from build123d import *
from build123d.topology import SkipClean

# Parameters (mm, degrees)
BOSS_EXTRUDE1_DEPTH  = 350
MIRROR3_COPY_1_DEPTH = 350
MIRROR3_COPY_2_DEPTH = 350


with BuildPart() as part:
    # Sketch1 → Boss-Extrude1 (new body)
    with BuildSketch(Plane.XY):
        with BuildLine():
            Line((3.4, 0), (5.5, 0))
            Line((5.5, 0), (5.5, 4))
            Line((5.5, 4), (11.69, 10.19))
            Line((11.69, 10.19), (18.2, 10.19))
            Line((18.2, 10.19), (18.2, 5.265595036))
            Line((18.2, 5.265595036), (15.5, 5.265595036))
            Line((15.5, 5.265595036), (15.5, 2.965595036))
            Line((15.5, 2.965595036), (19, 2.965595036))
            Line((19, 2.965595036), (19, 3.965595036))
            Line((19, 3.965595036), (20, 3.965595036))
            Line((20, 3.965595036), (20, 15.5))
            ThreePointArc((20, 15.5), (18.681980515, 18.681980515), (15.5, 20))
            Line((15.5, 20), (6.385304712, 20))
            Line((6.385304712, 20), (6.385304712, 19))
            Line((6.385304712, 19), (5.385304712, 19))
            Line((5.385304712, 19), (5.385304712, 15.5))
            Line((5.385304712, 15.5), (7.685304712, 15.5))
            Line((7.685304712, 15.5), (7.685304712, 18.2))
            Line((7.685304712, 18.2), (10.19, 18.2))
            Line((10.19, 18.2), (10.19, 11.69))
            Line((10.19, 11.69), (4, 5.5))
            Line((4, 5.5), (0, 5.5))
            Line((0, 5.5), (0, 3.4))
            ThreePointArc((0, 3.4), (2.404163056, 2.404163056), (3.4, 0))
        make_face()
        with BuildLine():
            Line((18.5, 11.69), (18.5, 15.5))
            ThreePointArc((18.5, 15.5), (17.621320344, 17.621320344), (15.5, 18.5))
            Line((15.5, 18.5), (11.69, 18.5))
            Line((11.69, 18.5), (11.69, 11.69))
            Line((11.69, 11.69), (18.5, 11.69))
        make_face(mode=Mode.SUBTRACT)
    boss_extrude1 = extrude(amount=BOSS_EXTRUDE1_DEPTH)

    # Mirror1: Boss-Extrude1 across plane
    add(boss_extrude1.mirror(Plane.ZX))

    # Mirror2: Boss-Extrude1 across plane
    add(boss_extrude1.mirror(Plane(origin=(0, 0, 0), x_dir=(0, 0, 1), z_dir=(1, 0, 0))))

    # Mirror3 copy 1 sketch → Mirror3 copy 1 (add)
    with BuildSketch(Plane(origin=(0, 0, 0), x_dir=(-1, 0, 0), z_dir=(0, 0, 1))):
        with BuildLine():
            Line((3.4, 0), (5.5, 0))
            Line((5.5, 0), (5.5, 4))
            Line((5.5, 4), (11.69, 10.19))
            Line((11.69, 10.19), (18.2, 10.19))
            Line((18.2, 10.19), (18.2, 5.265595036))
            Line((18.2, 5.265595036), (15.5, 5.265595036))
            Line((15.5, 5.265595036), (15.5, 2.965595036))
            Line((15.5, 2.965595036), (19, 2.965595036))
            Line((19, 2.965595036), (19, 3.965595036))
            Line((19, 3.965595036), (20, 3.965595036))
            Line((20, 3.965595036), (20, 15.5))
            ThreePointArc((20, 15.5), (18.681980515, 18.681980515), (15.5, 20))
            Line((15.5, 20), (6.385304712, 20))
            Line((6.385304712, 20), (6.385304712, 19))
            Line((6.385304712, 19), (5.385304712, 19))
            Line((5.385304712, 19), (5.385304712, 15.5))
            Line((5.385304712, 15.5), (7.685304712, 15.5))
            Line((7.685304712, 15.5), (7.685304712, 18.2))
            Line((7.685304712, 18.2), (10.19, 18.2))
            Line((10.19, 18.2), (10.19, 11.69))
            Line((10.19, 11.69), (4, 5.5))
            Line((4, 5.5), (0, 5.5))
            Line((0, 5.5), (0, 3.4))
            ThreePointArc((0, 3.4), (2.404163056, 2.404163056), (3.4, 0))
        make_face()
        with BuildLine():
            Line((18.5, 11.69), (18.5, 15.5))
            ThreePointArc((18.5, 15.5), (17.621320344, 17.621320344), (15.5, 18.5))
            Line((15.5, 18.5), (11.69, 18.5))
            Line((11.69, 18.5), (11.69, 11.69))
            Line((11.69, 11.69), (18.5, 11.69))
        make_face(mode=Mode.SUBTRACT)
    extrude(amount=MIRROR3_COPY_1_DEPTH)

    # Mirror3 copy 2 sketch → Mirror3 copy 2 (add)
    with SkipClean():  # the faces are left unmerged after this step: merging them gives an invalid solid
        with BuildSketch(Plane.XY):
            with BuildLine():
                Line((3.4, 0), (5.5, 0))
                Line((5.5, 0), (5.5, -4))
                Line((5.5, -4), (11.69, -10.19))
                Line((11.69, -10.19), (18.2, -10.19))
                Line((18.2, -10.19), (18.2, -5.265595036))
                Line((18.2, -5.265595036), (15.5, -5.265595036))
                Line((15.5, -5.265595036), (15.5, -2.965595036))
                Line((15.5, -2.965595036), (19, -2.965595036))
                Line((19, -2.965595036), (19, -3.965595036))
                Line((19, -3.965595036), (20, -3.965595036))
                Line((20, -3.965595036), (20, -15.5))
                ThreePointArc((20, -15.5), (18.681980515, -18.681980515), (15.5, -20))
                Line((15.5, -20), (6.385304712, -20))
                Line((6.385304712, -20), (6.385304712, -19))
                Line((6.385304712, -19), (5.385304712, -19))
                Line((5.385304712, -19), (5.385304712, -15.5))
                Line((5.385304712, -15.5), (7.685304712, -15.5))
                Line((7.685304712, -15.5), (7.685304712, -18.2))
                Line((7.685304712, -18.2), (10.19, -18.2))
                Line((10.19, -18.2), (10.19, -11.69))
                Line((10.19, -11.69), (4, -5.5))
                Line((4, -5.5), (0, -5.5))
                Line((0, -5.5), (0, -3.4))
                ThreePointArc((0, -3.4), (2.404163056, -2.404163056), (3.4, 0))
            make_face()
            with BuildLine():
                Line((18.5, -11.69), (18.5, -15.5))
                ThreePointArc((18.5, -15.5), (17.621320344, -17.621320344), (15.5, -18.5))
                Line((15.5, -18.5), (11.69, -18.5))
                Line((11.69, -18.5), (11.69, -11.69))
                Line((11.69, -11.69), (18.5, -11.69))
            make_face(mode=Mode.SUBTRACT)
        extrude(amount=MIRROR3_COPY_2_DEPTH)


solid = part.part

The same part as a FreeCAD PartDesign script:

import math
import FreeCAD as App
import Part
import Sketcher

V = App.Vector
Q = App.Units.Quantity

doc = App.newDocument("Part")
body = doc.addObject("PartDesign::Body", "Body")

# Sketch on XY plane
sketch1 = body.newObject("Sketcher::SketchObject", "Sketch")
sketch1.AttachmentSupport = (doc.getObject("XY_Plane"), [""])
sketch1.MapMode = "FlatFace"
sketch1.addGeometry([
    Part.LineSegment(V(3.4, 0, 0), V(5.5, 0, 0)),  # 0
    Part.LineSegment(V(5.5, 0, 0), V(5.5, 4, 0)),  # 1
    Part.LineSegment(V(5.5, 4, 0), V(11.69, 10.19, 0)),  # 2
    Part.LineSegment(V(11.69, 10.19, 0), V(18.2, 10.19, 0)),  # 3
    Part.LineSegment(V(18.2, 10.19, 0), V(18.2, 5.265595, 0)),  # 4
    Part.LineSegment(V(18.2, 5.265595, 0), V(15.5, 5.265595, 0)),  # 5
    Part.LineSegment(V(15.5, 5.265595, 0), V(15.5, 2.965595, 0)),  # 6
    Part.LineSegment(V(15.5, 2.965595, 0), V(19, 2.965595, 0)),  # 7
    Part.LineSegment(V(19, 2.965595, 0), V(19, 3.965595, 0)),  # 8
    Part.LineSegment(V(19, 3.965595, 0), V(20, 3.965595, 0)),  # 9
    Part.LineSegment(V(20, 3.965595, 0), V(20, 15.5, 0)),  # 10
    Part.ArcOfCircle(Part.Circle(V(15.5, 15.5, 0), V(0, 0, 1), 4.5), math.radians(0), math.radians(90)),  # 11
    Part.LineSegment(V(15.5, 20, 0), V(6.385305, 20, 0)),  # 12
    Part.LineSegment(V(6.385305, 20, 0), V(6.385305, 19, 0)),  # 13
    Part.LineSegment(V(6.385305, 19, 0), V(5.385305, 19, 0)),  # 14
    Part.LineSegment(V(5.385305, 19, 0), V(5.385305, 15.5, 0)),  # 15
    Part.LineSegment(V(5.385305, 15.5, 0), V(7.685305, 15.5, 0)),  # 16
    Part.LineSegment(V(7.685305, 15.5, 0), V(7.685305, 18.2, 0)),  # 17
    Part.LineSegment(V(7.685305, 18.2, 0), V(10.19, 18.2, 0)),  # 18
    Part.LineSegment(V(10.19, 18.2, 0), V(10.19, 11.69, 0)),  # 19
    Part.LineSegment(V(10.19, 11.69, 0), V(4, 5.5, 0)),  # 20
    Part.LineSegment(V(4, 5.5, 0), V(0, 5.5, 0)),  # 21
    Part.LineSegment(V(0, 5.5, 0), V(0, 3.4, 0)),  # 22
    Part.ArcOfCircle(Part.Circle(V(0, 0, 0), V(0, 0, 1), 3.4), math.radians(0), math.radians(90)),  # 23
    Part.LineSegment(V(18.5, 15.5, 0), V(18.5, 11.69, 0)),  # 24
    Part.LineSegment(V(18.5, 11.69, 0), V(11.69, 11.69, 0)),  # 25
    Part.LineSegment(V(11.69, 11.69, 0), V(11.69, 18.5, 0)),  # 26
    Part.LineSegment(V(11.69, 18.5, 0), V(15.5, 18.5, 0)),  # 27
    Part.ArcOfCircle(Part.Circle(V(15.5, 15.5, 0), V(0, 0, 1), 3), math.radians(0), math.radians(90)),  # 28
], False)
sketch1.addConstraint([
    Sketcher.Constraint("Coincident", 0, 2, 1, 1),
    Sketcher.Constraint("Coincident", 1, 2, 2, 1),
    Sketcher.Constraint("Coincident", 2, 2, 3, 1),
    Sketcher.Constraint("Coincident", 3, 2, 4, 1),
    Sketcher.Constraint("Coincident", 4, 2, 5, 1),
    Sketcher.Constraint("Coincident", 5, 2, 6, 1),
    Sketcher.Constraint("Coincident", 6, 2, 7, 1),
    Sketcher.Constraint("Coincident", 7, 2, 8, 1),
    Sketcher.Constraint("Coincident", 8, 2, 9, 1),
    Sketcher.Constraint("Coincident", 9, 2, 10, 1),
    Sketcher.Constraint("Tangent", 10, 2, 11, 1),
    Sketcher.Constraint("Tangent", 11, 2, 12, 1),
    Sketcher.Constraint("Coincident", 12, 2, 13, 1),
    Sketcher.Constraint("Coincident", 13, 2, 14, 1),
    Sketcher.Constraint("Coincident", 14, 2, 15, 1),
    Sketcher.Constraint("Coincident", 15, 2, 16, 1),
    Sketcher.Constraint("Coincident", 16, 2, 17, 1),
    Sketcher.Constraint("Coincident", 17, 2, 18, 1),
    Sketcher.Constraint("Coincident", 18, 2, 19, 1),
    Sketcher.Constraint("Coincident", 19, 2, 20, 1),
    Sketcher.Constraint("Coincident", 20, 2, 21, 1),
    Sketcher.Constraint("Coincident", 21, 2, 22, 1),
    Sketcher.Constraint("Coincident", 22, 2, 23, 2),
    Sketcher.Constraint("Coincident", 23, 1, 0, 1),
    Sketcher.Constraint("Coincident", 24, 2, 25, 1),
    Sketcher.Constraint("Coincident", 25, 2, 26, 1),
    Sketcher.Constraint("Coincident", 26, 2, 27, 1),
    Sketcher.Constraint("Tangent", 27, 2, 28, 2),
    Sketcher.Constraint("Tangent", 28, 1, 24, 1),
    Sketcher.Constraint("Horizontal", 0),
    Sketcher.Constraint("Vertical", 1),
    Sketcher.Constraint("Horizontal", 3),
    Sketcher.Constraint("Vertical", 4),
    Sketcher.Constraint("Horizontal", 5),
    Sketcher.Constraint("Vertical", 6),
    Sketcher.Constraint("Horizontal", 7),
    Sketcher.Constraint("Vertical", 8),
    Sketcher.Constraint("Horizontal", 9),
    Sketcher.Constraint("Vertical", 10),
    Sketcher.Constraint("Horizontal", 12),
    Sketcher.Constraint("Vertical", 13),
    Sketcher.Constraint("Horizontal", 14),
    Sketcher.Constraint("Vertical", 15),
    Sketcher.Constraint("Horizontal", 16),
    Sketcher.Constraint("Vertical", 17),
    Sketcher.Constraint("Horizontal", 18),
    Sketcher.Constraint("Vertical", 19),
    Sketcher.Constraint("Horizontal", 21),
    Sketcher.Constraint("Vertical", 22),
    Sketcher.Constraint("Vertical", 24),
    Sketcher.Constraint("Horizontal", 25),
    Sketcher.Constraint("Vertical", 26),
    Sketcher.Constraint("Horizontal", 27),
    Sketcher.Constraint("Coincident", 23, 3, -1, 1),
    Sketcher.Constraint("Coincident", 28, 3, 11, 3),
    Sketcher.Constraint("PointOnObject", 0, 2, -1),
    Sketcher.Constraint("PointOnObject", 21, 2, -2),
    Sketcher.Constraint("Parallel", 2, 20),
    Sketcher.Constraint("Horizontal", 10, 2, 15, 2),
    Sketcher.Constraint("Horizontal", 19, 2, 24, 2),
    Sketcher.Constraint("Vertical", 28, 3, 5, 2),
    Sketcher.Constraint("Vertical", 2, 2, 25, 2),
    Sketcher.Constraint("Equal", 9, 14),
    Sketcher.Constraint("Equal", 21, 1),
    Sketcher.Constraint("Equal", 16, 6),
    Sketcher.Constraint("Equal", 14, 8),
    Sketcher.Constraint("Equal", 8, 13),
    Sketcher.Constraint("Equal", 5, 17),
    Sketcher.Constraint("Equal", 3, 19),
    Sketcher.Constraint("Equal", 0, 22),
    Sketcher.Constraint("Equal", 2, 20),
    Sketcher.Constraint("Radius", 28, 3.0),
    Sketcher.Constraint("Radius", 11, 4.5),
    Sketcher.Constraint("Radius", 23, 3.4),
    Sketcher.Constraint("DistanceX", 9, 1, 9, 2, 1.0),
    Sketcher.Constraint("DistanceX", 21, 2, 21, 1, 4.0),
    Sketcher.Constraint("Angle", 2, Q("45 deg")),
    Sketcher.Constraint("DistanceX", 0, 1, 0, 2, 2.1),
    Sketcher.Constraint("DistanceX", 5, 2, 5, 1, 2.7),
    Sketcher.Constraint("DistanceX", 16, 1, 16, 2, 2.3),
    Sketcher.Constraint("DistanceX", -1, 1, 7, 2, 19.0),
    Sketcher.Constraint("DistanceX", 3, 1, 3, 2, 6.51),
    Sketcher.Constraint("DistanceX", 12, 2, 12, 1, 9.114695),
    Sketcher.Constraint("DistanceY", 4, 2, 4, 1, 4.924405),
])
pad1 = body.newObject("PartDesign::Pad", "Pad")
pad1.Profile = sketch1
pad1.Length = 350
doc.recompute()

mirrored = body.newObject("PartDesign::Mirrored", "Mirrored")
mirrored.Originals = [pad1]
mirrored.MirrorPlane = (doc.getObject("XZ_Plane"), [""])
body.Tip = mirrored
doc.recompute()

mirrored2 = body.newObject("PartDesign::Mirrored", "Mirrored001")
mirrored2.Originals = [pad1]
mirrored2.MirrorPlane = (doc.getObject("YZ_Plane"), [""])
body.Tip = mirrored2

# Sketch on XY plane
sketch2 = body.newObject("Sketcher::SketchObject", "Sketch001")
sketch2.AttachmentSupport = (doc.getObject("XY_Plane"), [""])
sketch2.MapMode = "FlatFace"
sketch2.addGeometry([
    Part.LineSegment(V(-3.4, 0, 0), V(-5.5, 0, 0)),  # 0
    Part.LineSegment(V(-5.5, 0, 0), V(-5.5, -4, 0)),  # 1
    Part.LineSegment(V(-5.5, -4, 0), V(-11.69, -10.19, 0)),  # 2
    Part.LineSegment(V(-11.69, -10.19, 0), V(-18.2, -10.19, 0)),  # 3
    Part.LineSegment(V(-18.2, -10.19, 0), V(-18.2, -5.265595, 0)),  # 4
    Part.LineSegment(V(-18.2, -5.265595, 0), V(-15.5, -5.265595, 0)),  # 5
    Part.LineSegment(V(-15.5, -5.265595, 0), V(-15.5, -2.965595, 0)),  # 6
    Part.LineSegment(V(-15.5, -2.965595, 0), V(-19, -2.965595, 0)),  # 7
    Part.LineSegment(V(-19, -2.965595, 0), V(-19, -3.965595, 0)),  # 8
    Part.LineSegment(V(-19, -3.965595, 0), V(-20, -3.965595, 0)),  # 9
    Part.LineSegment(V(-20, -3.965595, 0), V(-20, -15.5, 0)),  # 10
    Part.ArcOfCircle(Part.Circle(V(-15.5, -15.5, 0), V(0, 0, 1), 4.5), math.radians(-180), math.radians(-90)),  # 11
    Part.LineSegment(V(-15.5, -20, 0), V(-6.385305, -20, 0)),  # 12
    Part.LineSegment(V(-6.385305, -20, 0), V(-6.385305, -19, 0)),  # 13
    Part.LineSegment(V(-6.385305, -19, 0), V(-5.385305, -19, 0)),  # 14
    Part.LineSegment(V(-5.385305, -19, 0), V(-5.385305, -15.5, 0)),  # 15
    Part.LineSegment(V(-5.385305, -15.5, 0), V(-7.685305, -15.5, 0)),  # 16
    Part.LineSegment(V(-7.685305, -15.5, 0), V(-7.685305, -18.2, 0)),  # 17
    Part.LineSegment(V(-7.685305, -18.2, 0), V(-10.19, -18.2, 0)),  # 18
    Part.LineSegment(V(-10.19, -18.2, 0), V(-10.19, -11.69, 0)),  # 19
    Part.LineSegment(V(-10.19, -11.69, 0), V(-4, -5.5, 0)),  # 20
    Part.LineSegment(V(-4, -5.5, 0), V(0, -5.5, 0)),  # 21
    Part.LineSegment(V(0, -5.5, 0), V(0, -3.4, 0)),  # 22
    Part.ArcOfCircle(Part.Circle(V(0, 0, 0), V(0, 0, 1), 3.4), math.radians(180), math.radians(270)),  # 23
    Part.LineSegment(V(-18.5, -15.5, 0), V(-18.5, -11.69, 0)),  # 24
    Part.LineSegment(V(-18.5, -11.69, 0), V(-11.69, -11.69, 0)),  # 25
    Part.LineSegment(V(-11.69, -11.69, 0), V(-11.69, -18.5, 0)),  # 26
    Part.LineSegment(V(-11.69, -18.5, 0), V(-15.5, -18.5, 0)),  # 27
    Part.ArcOfCircle(Part.Circle(V(-15.5, -15.5, 0), V(0, 0, 1), 3), math.radians(180), math.radians(270)),  # 28
], False)
sketch2.addConstraint([
    Sketcher.Constraint("Coincident", 0, 2, 1, 1),
    Sketcher.Constraint("Coincident", 1, 2, 2, 1),
    Sketcher.Constraint("Coincident", 2, 2, 3, 1),
    Sketcher.Constraint("Coincident", 3, 2, 4, 1),
    Sketcher.Constraint("Coincident", 4, 2, 5, 1),
    Sketcher.Constraint("Coincident", 5, 2, 6, 1),
    Sketcher.Constraint("Coincident", 6, 2, 7, 1),
    Sketcher.Constraint("Coincident", 7, 2, 8, 1),
    Sketcher.Constraint("Coincident", 8, 2, 9, 1),
    Sketcher.Constraint("Coincident", 9, 2, 10, 1),
    Sketcher.Constraint("Tangent", 10, 2, 11, 1),
    Sketcher.Constraint("Tangent", 11, 2, 12, 1),
    Sketcher.Constraint("Coincident", 12, 2, 13, 1),
    Sketcher.Constraint("Coincident", 13, 2, 14, 1),
    Sketcher.Constraint("Coincident", 14, 2, 15, 1),
    Sketcher.Constraint("Coincident", 15, 2, 16, 1),
    Sketcher.Constraint("Coincident", 16, 2, 17, 1),
    Sketcher.Constraint("Coincident", 17, 2, 18, 1),
    Sketcher.Constraint("Coincident", 18, 2, 19, 1),
    Sketcher.Constraint("Coincident", 19, 2, 20, 1),
    Sketcher.Constraint("Coincident", 20, 2, 21, 1),
    Sketcher.Constraint("Coincident", 21, 2, 22, 1),
    Sketcher.Constraint("Coincident", 22, 2, 23, 2),
    Sketcher.Constraint("Coincident", 23, 1, 0, 1),
    Sketcher.Constraint("Coincident", 24, 2, 25, 1),
    Sketcher.Constraint("Coincident", 25, 2, 26, 1),
    Sketcher.Constraint("Coincident", 26, 2, 27, 1),
    Sketcher.Constraint("Tangent", 27, 2, 28, 2),
    Sketcher.Constraint("Tangent", 28, 1, 24, 1),
    Sketcher.Constraint("Horizontal", 0),
    Sketcher.Constraint("Vertical", 1),
    Sketcher.Constraint("Horizontal", 3),
    Sketcher.Constraint("Vertical", 4),
    Sketcher.Constraint("Horizontal", 5),
    Sketcher.Constraint("Vertical", 6),
    Sketcher.Constraint("Horizontal", 7),
    Sketcher.Constraint("Vertical", 8),
    Sketcher.Constraint("Horizontal", 9),
    Sketcher.Constraint("Vertical", 10),
    Sketcher.Constraint("Horizontal", 12),
    Sketcher.Constraint("Vertical", 13),
    Sketcher.Constraint("Horizontal", 14),
    Sketcher.Constraint("Vertical", 15),
    Sketcher.Constraint("Horizontal", 16),
    Sketcher.Constraint("Vertical", 17),
    Sketcher.Constraint("Horizontal", 18),
    Sketcher.Constraint("Vertical", 19),
    Sketcher.Constraint("Horizontal", 21),
    Sketcher.Constraint("Vertical", 22),
    Sketcher.Constraint("Vertical", 24),
    Sketcher.Constraint("Horizontal", 25),
    Sketcher.Constraint("Vertical", 26),
    Sketcher.Constraint("Horizontal", 27),
    Sketcher.Constraint("Coincident", 23, 3, -1, 1),
    Sketcher.Constraint("Coincident", 28, 3, 11, 3),
    Sketcher.Constraint("PointOnObject", 0, 2, -1),
    Sketcher.Constraint("PointOnObject", 21, 2, -2),
    Sketcher.Constraint("Parallel", 2, 20),
    Sketcher.Constraint("Horizontal", 10, 2, 15, 2),
    Sketcher.Constraint("Horizontal", 19, 2, 24, 2),
    Sketcher.Constraint("Vertical", 28, 3, 5, 2),
    Sketcher.Constraint("Vertical", 2, 2, 25, 2),
    Sketcher.Constraint("Equal", 9, 14),
    Sketcher.Constraint("Equal", 21, 1),
    Sketcher.Constraint("Equal", 16, 6),
    Sketcher.Constraint("Equal", 14, 8),
    Sketcher.Constraint("Equal", 8, 13),
    Sketcher.Constraint("Equal", 5, 17),
    Sketcher.Constraint("Equal", 3, 19),
    Sketcher.Constraint("Equal", 0, 22),
    Sketcher.Constraint("Equal", 2, 20),
    Sketcher.Constraint("Radius", 28, 3.0),
    Sketcher.Constraint("Radius", 11, 4.5),
    Sketcher.Constraint("Radius", 23, 3.4),
    Sketcher.Constraint("DistanceX", 9, 2, 9, 1, 1.0),
    Sketcher.Constraint("DistanceX", 21, 1, 21, 2, 4.0),
    Sketcher.Constraint("Angle", 2, Q("-135 deg")),
    Sketcher.Constraint("DistanceX", 0, 2, 0, 1, 2.1),
    Sketcher.Constraint("DistanceX", 5, 1, 5, 2, 2.7),
    Sketcher.Constraint("DistanceX", 16, 2, 16, 1, 2.3),
    Sketcher.Constraint("DistanceX", 7, 2, -1, 1, 19.0),
    Sketcher.Constraint("DistanceX", 3, 2, 3, 1, 6.51),
    Sketcher.Constraint("DistanceX", 12, 1, 12, 2, 9.114695),
    Sketcher.Constraint("DistanceY", 4, 1, 4, 2, 4.924405),
])
pad2 = body.newObject("PartDesign::Pad", "Pad001")
pad2.Profile = sketch2
pad2.Length = 350

# Sketch on XY plane
sketch3 = body.newObject("Sketcher::SketchObject", "Sketch002")
sketch3.AttachmentSupport = (doc.getObject("XY_Plane"), [""])
sketch3.MapMode = "FlatFace"
sketch3.addGeometry([
    Part.LineSegment(V(5.5, 0, 0), V(3.4, 0, 0)),  # 0
    Part.ArcOfCircle(Part.Circle(V(0, 0, 0), V(0, 0, 1), 3.4), math.radians(-90), math.radians(0)),  # 1
    Part.LineSegment(V(0, -3.4, 0), V(0, -5.5, 0)),  # 2
    Part.LineSegment(V(0, -5.5, 0), V(4, -5.5, 0)),  # 3
    Part.LineSegment(V(4, -5.5, 0), V(10.19, -11.69, 0)),  # 4
    Part.LineSegment(V(10.19, -11.69, 0), V(10.19, -18.2, 0)),  # 5
    Part.LineSegment(V(10.19, -18.2, 0), V(7.685305, -18.2, 0)),  # 6
    Part.LineSegment(V(7.685305, -18.2, 0), V(7.685305, -15.5, 0)),  # 7
    Part.LineSegment(V(7.685305, -15.5, 0), V(5.385305, -15.5, 0)),  # 8
    Part.LineSegment(V(5.385305, -15.5, 0), V(5.385305, -19, 0)),  # 9
    Part.LineSegment(V(5.385305, -19, 0), V(6.385305, -19, 0)),  # 10
    Part.LineSegment(V(6.385305, -19, 0), V(6.385305, -20, 0)),  # 11
    Part.LineSegment(V(6.385305, -20, 0), V(15.5, -20, 0)),  # 12
    Part.ArcOfCircle(Part.Circle(V(15.5, -15.5, 0), V(0, 0, 1), 4.5), math.radians(-90), math.radians(0)),  # 13
    Part.LineSegment(V(20, -15.5, 0), V(20, -3.965595, 0)),  # 14
    Part.LineSegment(V(20, -3.965595, 0), V(19, -3.965595, 0)),  # 15
    Part.LineSegment(V(19, -3.965595, 0), V(19, -2.965595, 0)),  # 16
    Part.LineSegment(V(19, -2.965595, 0), V(15.5, -2.965595, 0)),  # 17
    Part.LineSegment(V(15.5, -2.965595, 0), V(15.5, -5.265595, 0)),  # 18
    Part.LineSegment(V(15.5, -5.265595, 0), V(18.2, -5.265595, 0)),  # 19
    Part.LineSegment(V(18.2, -5.265595, 0), V(18.2, -10.19, 0)),  # 20
    Part.LineSegment(V(18.2, -10.19, 0), V(11.69, -10.19, 0)),  # 21
    Part.LineSegment(V(11.69, -10.19, 0), V(5.5, -4, 0)),  # 22
    Part.LineSegment(V(5.5, -4, 0), V(5.5, 0, 0)),  # 23
    Part.LineSegment(V(18.5, -11.69, 0), V(18.5, -15.5, 0)),  # 24
    Part.ArcOfCircle(Part.Circle(V(15.5, -15.5, 0), V(0, 0, 1), 3), math.radians(-90), math.radians(0)),  # 25
    Part.LineSegment(V(15.5, -18.5, 0), V(11.69, -18.5, 0)),  # 26
    Part.LineSegment(V(11.69, -18.5, 0), V(11.69, -11.69, 0)),  # 27
    Part.LineSegment(V(11.69, -11.69, 0), V(18.5, -11.69, 0)),  # 28
], False)
sketch3.addConstraint([
    Sketcher.Constraint("Coincident", 0, 2, 1, 2),
    Sketcher.Constraint("Coincident", 1, 1, 2, 1),
    Sketcher.Constraint("Coincident", 2, 2, 3, 1),
    Sketcher.Constraint("Coincident", 3, 2, 4, 1),
    Sketcher.Constraint("Coincident", 4, 2, 5, 1),
    Sketcher.Constraint("Coincident", 5, 2, 6, 1),
    Sketcher.Constraint("Coincident", 6, 2, 7, 1),
    Sketcher.Constraint("Coincident", 7, 2, 8, 1),
    Sketcher.Constraint("Coincident", 8, 2, 9, 1),
    Sketcher.Constraint("Coincident", 9, 2, 10, 1),
    Sketcher.Constraint("Coincident", 10, 2, 11, 1),
    Sketcher.Constraint("Coincident", 11, 2, 12, 1),
    Sketcher.Constraint("Tangent", 12, 2, 13, 1),
    Sketcher.Constraint("Tangent", 13, 2, 14, 1),
    Sketcher.Constraint("Coincident", 14, 2, 15, 1),
    Sketcher.Constraint("Coincident", 15, 2, 16, 1),
    Sketcher.Constraint("Coincident", 16, 2, 17, 1),
    Sketcher.Constraint("Coincident", 17, 2, 18, 1),
    Sketcher.Constraint("Coincident", 18, 2, 19, 1),
    Sketcher.Constraint("Coincident", 19, 2, 20, 1),
    Sketcher.Constraint("Coincident", 20, 2, 21, 1),
    Sketcher.Constraint("Coincident", 21, 2, 22, 1),
    Sketcher.Constraint("Coincident", 22, 2, 23, 1),
    Sketcher.Constraint("Coincident", 23, 2, 0, 1),
    Sketcher.Constraint("Tangent", 24, 2, 25, 2),
    Sketcher.Constraint("Tangent", 25, 1, 26, 1),
    Sketcher.Constraint("Coincident", 26, 2, 27, 1),
    Sketcher.Constraint("Coincident", 27, 2, 28, 1),
    Sketcher.Constraint("Coincident", 28, 2, 24, 1),
    Sketcher.Constraint("Horizontal", 0),
    Sketcher.Constraint("Vertical", 2),
    Sketcher.Constraint("Horizontal", 3),
    Sketcher.Constraint("Vertical", 5),
    Sketcher.Constraint("Horizontal", 6),
    Sketcher.Constraint("Vertical", 7),
    Sketcher.Constraint("Horizontal", 8),
    Sketcher.Constraint("Vertical", 9),
    Sketcher.Constraint("Horizontal", 10),
    Sketcher.Constraint("Vertical", 11),
    Sketcher.Constraint("Horizontal", 12),
    Sketcher.Constraint("Vertical", 14),
    Sketcher.Constraint("Horizontal", 15),
    Sketcher.Constraint("Vertical", 16),
    Sketcher.Constraint("Horizontal", 17),
    Sketcher.Constraint("Vertical", 18),
    Sketcher.Constraint("Horizontal", 19),
    Sketcher.Constraint("Vertical", 20),
    Sketcher.Constraint("Horizontal", 21),
    Sketcher.Constraint("Vertical", 23),
    Sketcher.Constraint("Vertical", 24),
    Sketcher.Constraint("Horizontal", 26),
    Sketcher.Constraint("Vertical", 27),
    Sketcher.Constraint("Horizontal", 28),
    Sketcher.Constraint("Coincident", 1, 3, -1, 1),
    Sketcher.Constraint("Coincident", 25, 3, 13, 3),
    Sketcher.Constraint("PointOnObject", 0, 2, -1),
    Sketcher.Constraint("PointOnObject", 1, 1, -2),
    Sketcher.Constraint("Parallel", 4, 22),
    Sketcher.Constraint("Horizontal", 25, 3, 7, 2),
    Sketcher.Constraint("Horizontal", 4, 2, 27, 2),
    Sketcher.Constraint("Vertical", 12, 2, 17, 2),
    Sketcher.Constraint("Vertical", 21, 2, 26, 2),
    Sketcher.Constraint("Equal", 10, 15),
    Sketcher.Constraint("Equal", 0, 2),
    Sketcher.Constraint("Equal", 21, 5),
    Sketcher.Constraint("Equal", 19, 7),
    Sketcher.Constraint("Equal", 17, 9),
    Sketcher.Constraint("Equal", 11, 16),
    Sketcher.Constraint("Equal", 8, 18),
    Sketcher.Constraint("Equal", 3, 23),
    Sketcher.Constraint("Equal", 4, 22),
    Sketcher.Constraint("Radius", 25, 3.0),
    Sketcher.Constraint("Radius", 1, 3.4),
    Sketcher.Constraint("Radius", 13, 4.5),
    Sketcher.Constraint("DistanceX", 3, 1, 3, 2, 4.0),
    Sketcher.Constraint("DistanceX", 10, 1, 10, 2, 1.0),
    Sketcher.Constraint("Angle", 4, Q("-45 deg")),
    Sketcher.Constraint("DistanceX", 0, 2, 0, 1, 2.1),
    Sketcher.Constraint("DistanceX", 8, 2, 8, 1, 2.3),
    Sketcher.Constraint("DistanceX", 19, 1, 19, 2, 2.7),
    Sketcher.Constraint("DistanceY", 9, 2, -1, 1, 19.0),
    Sketcher.Constraint("DistanceX", 21, 2, 21, 1, 6.51),
    Sketcher.Constraint("DistanceX", 6, 2, 6, 1, 2.504695),
    Sketcher.Constraint("DistanceY", 14, 1, 14, 2, 11.534405),
])
pad3 = body.newObject("PartDesign::Pad", "Pad002")
pad3.Profile = sketch3
pad3.Length = 350

doc.recompute()
